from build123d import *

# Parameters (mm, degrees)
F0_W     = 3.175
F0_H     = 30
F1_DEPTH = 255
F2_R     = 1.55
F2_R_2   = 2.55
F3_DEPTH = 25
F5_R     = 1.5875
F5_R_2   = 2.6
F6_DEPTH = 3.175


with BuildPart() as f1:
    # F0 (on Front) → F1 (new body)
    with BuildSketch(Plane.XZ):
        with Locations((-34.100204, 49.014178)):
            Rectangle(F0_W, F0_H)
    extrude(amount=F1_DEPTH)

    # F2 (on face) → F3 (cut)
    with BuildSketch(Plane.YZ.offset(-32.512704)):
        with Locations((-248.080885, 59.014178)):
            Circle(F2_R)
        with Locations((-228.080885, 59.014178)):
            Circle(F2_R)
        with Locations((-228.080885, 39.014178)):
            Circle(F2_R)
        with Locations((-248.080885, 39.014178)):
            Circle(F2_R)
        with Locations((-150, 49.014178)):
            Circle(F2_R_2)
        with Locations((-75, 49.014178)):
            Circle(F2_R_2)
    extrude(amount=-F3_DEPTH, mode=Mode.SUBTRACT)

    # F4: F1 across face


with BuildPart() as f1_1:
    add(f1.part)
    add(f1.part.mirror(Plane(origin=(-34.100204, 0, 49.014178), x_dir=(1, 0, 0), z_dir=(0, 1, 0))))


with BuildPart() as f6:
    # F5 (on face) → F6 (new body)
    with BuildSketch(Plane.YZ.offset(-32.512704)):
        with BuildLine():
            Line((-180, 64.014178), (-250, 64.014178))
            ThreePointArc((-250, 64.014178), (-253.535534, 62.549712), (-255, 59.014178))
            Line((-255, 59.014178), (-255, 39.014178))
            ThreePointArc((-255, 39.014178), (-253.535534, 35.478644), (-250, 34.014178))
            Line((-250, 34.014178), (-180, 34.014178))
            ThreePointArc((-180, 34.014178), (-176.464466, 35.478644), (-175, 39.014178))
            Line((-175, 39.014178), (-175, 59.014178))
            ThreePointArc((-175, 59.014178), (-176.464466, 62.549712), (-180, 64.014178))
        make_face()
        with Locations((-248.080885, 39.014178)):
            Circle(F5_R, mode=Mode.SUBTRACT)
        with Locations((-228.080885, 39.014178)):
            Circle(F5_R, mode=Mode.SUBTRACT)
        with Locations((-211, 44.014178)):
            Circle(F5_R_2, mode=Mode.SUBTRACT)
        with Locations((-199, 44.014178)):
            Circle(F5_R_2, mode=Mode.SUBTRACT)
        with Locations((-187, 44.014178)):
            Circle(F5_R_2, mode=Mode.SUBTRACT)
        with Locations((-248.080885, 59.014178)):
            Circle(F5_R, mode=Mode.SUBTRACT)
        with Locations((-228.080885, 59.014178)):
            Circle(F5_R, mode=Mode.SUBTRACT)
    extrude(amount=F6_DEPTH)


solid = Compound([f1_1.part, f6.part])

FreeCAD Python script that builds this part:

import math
import FreeCAD as App
import Part
import Sketcher
Q = App.Units.Quantity


def add_polygon(sketch, points):
    """Adds a closed chain of lines whose ends are joined by coincident constraints."""
    first, n = sketch.GeometryCount, len(points)
    for a, b in zip(points, points[1:] + points[:1]):
        sketch.addGeometry(Part.LineSegment(App.Vector(*a, 0), App.Vector(*b, 0)), False)
    for i in range(n):
        sketch.addConstraint(Sketcher.Constraint("Coincident", first + i, 2, first + (i + 1) % n, 1))

doc = App.newDocument("Part")
body = doc.addObject("PartDesign::Body", "Body")

sketch1 = body.newObject("Sketcher::SketchObject", "Sketch")
sketch1.AttachmentSupport = (doc.getObject("XZ_Plane"), [""])
sketch1.MapMode = "FlatFace"
add_polygon(sketch1, [(-35.7, 64), (-35.7, 34), (-32.5, 34), (-32.5, 64)])
sketch1.addConstraint([
    Sketcher.Constraint("Vertical", 0),
    Sketcher.Constraint("Horizontal", 1),
    Sketcher.Constraint("Vertical", 2),
    Sketcher.Constraint("Horizontal", 3),
    Sketcher.Constraint("DistanceY", 0, 2, 0, 1, Q("30 mm")),
    Sketcher.Constraint("DistanceX", 1, 1, 1, 2, Q("3.175 mm")),
    Sketcher.Constraint("DistanceY", -1, 1, 2, 2, Q("64.014178 mm")),
    Sketcher.Constraint("DistanceX", 0, 2, -1, 1, Q("35.687704 mm")),
])
pad1 = body.newObject("PartDesign::Pad", "Pad")
pad1.Profile = sketch1
pad1.Length = 255

sketch2 = body.newObject("Sketcher::SketchObject", "Sketch001")
sketch2.AttachmentSupport = (doc.getObject("YZ_Plane"), [""])
sketch2.MapMode = "FlatFace"
sketch2.AttachmentOffset = App.Placement(App.Vector(0, 0, -32.512704), App.Rotation())
sketch2.addGeometry([
    Part.Circle(App.Vector(-248.1, 59, 0), App.Vector(0, 0, 1), 1.6),
    Part.Circle(App.Vector(-228.1, 59, 0), App.Vector(0, 0, 1), 1.6),
    Part.Circle(App.Vector(-228.1, 39, 0), App.Vector(0, 0, 1), 1.6),
    Part.Circle(App.Vector(-248.1, 39, 0), App.Vector(0, 0, 1), 1.6),
    Part.Circle(App.Vector(-150, 49, 0), App.Vector(0, 0, 1), 2.5),
    Part.Circle(App.Vector(-75, 49, 0), App.Vector(0, 0, 1), 2.5),
], False)
sketch2.addConstraint([
    Sketcher.Constraint("Equal", 0, 1),
    Sketcher.Constraint("Equal", 1, 2),
    Sketcher.Constraint("Equal", 2, 3),
    Sketcher.Constraint("Equal", 4, 5),
    Sketcher.Constraint("Horizontal", 0, 3, 1, 3),
    Sketcher.Constraint("Horizontal", 2, 3, 3, 3),
    Sketcher.Constraint("Horizontal", 4, 3, 5, 3),
    Sketcher.Constraint("Vertical", 1, 3, 2, 3),
    Sketcher.Constraint("Vertical", 0, 3, 3, 3),
    Sketcher.Constraint("Diameter", 0, Q("3.1 mm")),
    Sketcher.Constraint("Diameter", 4, Q("5.1 mm")),
    Sketcher.Constraint("DistanceX", 4, 3, -1, 1, Q("150 mm")),
    Sketcher.Constraint("DistanceX", 5, 3, -1, 1, Q("75 mm")),
    Sketcher.Constraint("DistanceX", 0, 3, 1, 3, Q("20 mm")),
    Sketcher.Constraint("DistanceY", 2, 3, 1, 3, Q("20 mm")),
    Sketcher.Constraint("DistanceY", 4, 3, 1, 3, Q("10 mm")),
    Sketcher.Constraint("DistanceX", 0, 3, -1, 1, Q("248.080885 mm")),
    Sketcher.Constraint("DistanceY", -1, 1, 0, 3, Q("59.014178 mm")),
])
pocket1 = body.newObject("PartDesign::Pocket", "Pocket")
pocket1.Profile = sketch2
pocket1.Length = 25
body2 = doc.addObject("PartDesign::Body", "Body001")
doc.recompute()

body2.BaseFeature = body
doc.recompute()

mirroring = doc.addObject("Part::Mirroring", "Mirroring")
mirroring.Source = body
mirroring.Base = App.Vector(-34.100204, 0, 49.014178)
mirroring.Normal = App.Vector(0, 1, 0)
body3 = doc.addObject("PartDesign::Body", "Body002")
body3.BaseFeature = mirroring
boolean = body2.newObject("PartDesign::Boolean", "Boolean")
boolean.Type = "Fuse"
boolean.addObjects([body3])
doc.recompute()
body4 = doc.addObject("PartDesign::Body", "Body003")

sketch3 = body4.newObject("Sketcher::SketchObject", "Sketch002")
sketch3.AttachmentSupport = (doc.getObject("YZ_Plane003"), [""])
sketch3.MapMode = "FlatFace"
sketch3.AttachmentOffset = App.Placement(App.Vector(0, 0, -32.512704), App.Rotation())
sketch3.addGeometry([
    Part.LineSegment(App.Vector(-180, 64, 0), App.Vector(-250, 64, 0)),
    Part.ArcOfCircle(Part.Circle(App.Vector(-250, 59, 0), App.Vector(0, 0, 1), 5), math.radians(90), math.radians(180)),
    Part.LineSegment(App.Vector(-255, 59, 0), App.Vector(-255, 39, 0)),
    Part.ArcOfCircle(Part.Circle(App.Vector(-250, 39, 0), App.Vector(0, 0, 1), 5), math.radians(180), math.radians(270)),
    Part.LineSegment(App.Vector(-250, 34, 0), App.Vector(-180, 34, 0)),
    Part.ArcOfCircle(Part.Circle(App.Vector(-180, 39, 0), App.Vector(0, 0, 1), 5), math.radians(-90), math.radians(0)),
    Part.LineSegment(App.Vector(-175, 39, 0), App.Vector(-175, 59, 0)),
    Part.ArcOfCircle(Part.Circle(App.Vector(-180, 59, 0), App.Vector(0, 0, 1), 5), math.radians(0), math.radians(90)),
    Part.Circle(App.Vector(-248.1, 39, 0), App.Vector(0, 0, 1), 1.6),
    Part.Circle(App.Vector(-228.1, 39, 0), App.Vector(0, 0, 1), 1.6),
    Part.Circle(App.Vector(-211, 44, 0), App.Vector(0, 0, 1), 2.6),
    Part.Circle(App.Vector(-199, 44, 0), App.Vector(0, 0, 1), 2.6),
    Part.Circle(App.Vector(-187, 44, 0), App.Vector(0, 0, 1), 2.6),
    Part.Circle(App.Vector(-248.1, 59, 0), App.Vector(0, 0, 1), 1.6),
    Part.Circle(App.Vector(-228.1, 59, 0), App.Vector(0, 0, 1), 1.6),
], False)
sketch3.addConstraint([
    Sketcher.Constraint("Tangent", 0, 2, 1, 1),
    Sketcher.Constraint("Tangent", 1, 2, 2, 1),
    Sketcher.Constraint("Tangent", 2, 2, 3, 1),
    Sketcher.Constraint("Tangent", 3, 2, 4, 1),
    Sketcher.Constraint("Tangent", 4, 2, 5, 1),
    Sketcher.Constraint("Tangent", 5, 2, 6, 1),
    Sketcher.Constraint("Tangent", 6, 2, 7, 1),
    Sketcher.Constraint("Tangent", 7, 2, 0, 1),
    Sketcher.Constraint("Horizontal", 0),
    Sketcher.Constraint("Vertical", 2),
    Sketcher.Constraint("Horizontal", 4),
    Sketcher.Constraint("Vertical", 6),
    Sketcher.Constraint("Equal", 1, 3),
    Sketcher.Constraint("Equal", 3, 5),
    Sketcher.Constraint("Equal", 5, 7),
    Sketcher.Constraint("Equal", 8, 9),
    Sketcher.Constraint("Equal", 10, 11),
    Sketcher.Constraint("Equal", 11, 12),
    Sketcher.Constraint("Equal", 9, 13),
    Sketcher.Constraint("Equal", 13, 14),
    Sketcher.Constraint("Horizontal", 5, 3, 8, 3),
    Sketcher.Constraint("Horizontal", 8, 3, 9, 3),
    Sketcher.Constraint("Horizontal", 10, 3, 11, 3),
    Sketcher.Constraint("Horizontal", 11, 3, 12, 3),
    Sketcher.Constraint("Horizontal", 7, 3, 13, 3),
    Sketcher.Constraint("Horizontal", 13, 3, 14, 3),
    Sketcher.Constraint("Vertical", 8, 3, 13, 3),
    Sketcher.Constraint("Vertical", 9, 3, 14, 3),
    Sketcher.Constraint("Radius", 1, Q("5 mm")),
    Sketcher.Constraint("Diameter", 10, Q("5.2 mm")),
    Sketcher.Constraint("DistanceX", 0, 2, 0, 1, Q("70 mm")),
    Sketcher.Constraint("DistanceY", 2, 2, 2, 1, Q("20 mm")),
    Sketcher.Constraint("Diameter", 8, Q("3.175 mm")),
    Sketcher.Constraint("DistanceX", 1, 3, -1, 1, Q("250 mm")),
    Sketcher.Constraint("DistanceX", 10, 3, -1, 1, Q("211 mm")),
    Sketcher.Constraint("DistanceX", 11, 3, -1, 1, Q("199 mm")),
    Sketcher.Constraint("DistanceX", 12, 3, -1, 1, Q("187 mm")),
    Sketcher.Constraint("DistanceX", 8, 3, 9, 3, Q("20 mm")),
    Sketcher.Constraint("DistanceY", 9, 3, 10, 3, Q("5 mm")),
    Sketcher.Constraint("DistanceY", -1, 1, 1, 3, Q("59.014178 mm")),
    Sketcher.Constraint("DistanceX", 8, 3, -1, 1, Q("248.080885 mm")),
])
pad2 = body4.newObject("PartDesign::Pad", "Pad001")
pad2.Profile = sketch3
pad2.Length = 3.175
mirroring.Visibility = False

doc.recompute()
